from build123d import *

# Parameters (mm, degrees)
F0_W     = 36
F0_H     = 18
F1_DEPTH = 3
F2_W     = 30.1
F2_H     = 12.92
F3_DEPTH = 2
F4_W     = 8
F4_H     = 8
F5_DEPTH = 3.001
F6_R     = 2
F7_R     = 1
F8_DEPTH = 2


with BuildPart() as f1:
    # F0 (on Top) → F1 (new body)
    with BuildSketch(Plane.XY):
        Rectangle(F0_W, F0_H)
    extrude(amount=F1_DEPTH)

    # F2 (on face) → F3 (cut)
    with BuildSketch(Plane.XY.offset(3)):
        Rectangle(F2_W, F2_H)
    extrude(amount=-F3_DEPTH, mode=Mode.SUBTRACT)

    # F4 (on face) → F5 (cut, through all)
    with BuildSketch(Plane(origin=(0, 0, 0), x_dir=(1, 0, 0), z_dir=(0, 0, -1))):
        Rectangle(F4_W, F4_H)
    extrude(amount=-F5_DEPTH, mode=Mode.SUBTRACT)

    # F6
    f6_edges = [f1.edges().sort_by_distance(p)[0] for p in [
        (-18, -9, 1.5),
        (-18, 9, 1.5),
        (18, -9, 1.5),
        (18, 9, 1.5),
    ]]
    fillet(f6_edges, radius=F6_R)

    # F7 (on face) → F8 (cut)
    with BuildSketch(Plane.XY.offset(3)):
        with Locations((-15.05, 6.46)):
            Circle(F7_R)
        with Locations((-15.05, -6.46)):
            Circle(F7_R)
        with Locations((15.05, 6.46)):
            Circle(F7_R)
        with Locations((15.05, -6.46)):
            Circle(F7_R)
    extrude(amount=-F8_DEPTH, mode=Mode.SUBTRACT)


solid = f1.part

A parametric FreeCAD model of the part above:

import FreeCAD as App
import Part
import Sketcher


def edges_at(feature, points):
    """Names of the edges that pass closest to the given points."""
    edges = feature.Shape.Edges
    near = lambda p: min(range(len(edges)), key=lambda i: edges[i].distToShape(Part.Vertex(*p))[0])
    return sorted({f"Edge{near(p) + 1}" for p in points})

doc = App.newDocument("Part")
body = doc.addObject("PartDesign::Body", "Body")

sketch1 = body.newObject("Sketcher::SketchObject", "Sketch")
sketch1.AttachmentSupport = (doc.getObject("XY_Plane"), [""])
sketch1.MapMode = "FlatFace"
sketch1.addGeometry([
    Part.LineSegment(App.Vector(-18, 9, 0), App.Vector(-18, -9, 0)),
    Part.LineSegment(App.Vector(-18, -9, 0), App.Vector(18, -9, 0)),
    Part.LineSegment(App.Vector(18, -9, 0), App.Vector(18, 9, 0)),
    Part.LineSegment(App.Vector(18, 9, 0), App.Vector(-18, 9, 0)),
], False)
sketch1.addConstraint([
    Sketcher.Constraint("Coincident", 0, 2, 1, 1),
    Sketcher.Constraint("Coincident", 1, 2, 2, 1),
    Sketcher.Constraint("Coincident", 2, 2, 3, 1),
    Sketcher.Constraint("Coincident", 3, 2, 0, 1),
    Sketcher.Constraint("Vertical", 0),
    Sketcher.Constraint("Horizontal", 1),
    Sketcher.Constraint("Vertical", 2),
    Sketcher.Constraint("Horizontal", 3),
    Sketcher.Constraint("Symmetric", 0, 2, 2, 2, -1, 1),
    Sketcher.Constraint("DistanceX", 1, 1, 1, 2, 36.0),
    Sketcher.Constraint("DistanceY", 0, 2, 0, 1, 18.0),
])
pad1 = body.newObject("PartDesign::Pad", "Pad")
pad1.Profile = sketch1
pad1.Length = 3

sketch2 = body.newObject("Sketcher::SketchObject", "Sketch001")
sketch2.AttachmentSupport = (doc.getObject("XY_Plane"), [""])
sketch2.MapMode = "FlatFace"
sketch2.AttachmentOffset = App.Placement(App.Vector(0, 0, 3), App.Rotation())
sketch2.addGeometry([
    Part.LineSegment(App.Vector(-15, 6, 0), App.Vector(-15, -6, 0)),
    Part.LineSegment(App.Vector(-15, -6, 0), App.Vector(15, -6, 0)),
    Part.LineSegment(App.Vector(15, -6, 0), App.Vector(15, 6, 0)),
    Part.LineSegment(App.Vector(15, 6, 0), App.Vector(-15, 6, 0)),
], False)
sketch2.addConstraint([
    Sketcher.Constraint("Coincident", 0, 2, 1, 1),
    Sketcher.Constraint("Coincident", 1, 2, 2, 1),
    Sketcher.Constraint("Coincident", 2, 2, 3, 1),
    Sketcher.Constraint("Coincident", 3, 2, 0, 1),
    Sketcher.Constraint("Vertical", 0),
    Sketcher.Constraint("Horizontal", 1),
    Sketcher.Constraint("Vertical", 2),
    Sketcher.Constraint("Horizontal", 3),
    Sketcher.Constraint("Symmetric", 0, 2, 2, 2, -1, 1),
    Sketcher.Constraint("DistanceX", 1, 1, 1, 2, 30.1),
    Sketcher.Constraint("DistanceY", 0, 2, 0, 1, 12.92),
])
pocket1 = body.newObject("PartDesign::Pocket", "Pocket")
pocket1.Profile = sketch2
pocket1.Length = 2

sketch3 = body.newObject("Sketcher::SketchObject", "Sketch002")
sketch3.AttachmentSupport = (doc.getObject("XY_Plane"), [""])
sketch3.MapMode = "FlatFace"
sketch3.addGeometry([
    Part.LineSegment(App.Vector(-4, -4, 0), App.Vector(-4, 4, 0)),
    Part.LineSegment(App.Vector(-4, 4, 0), App.Vector(4, 4, 0)),
    Part.LineSegment(App.Vector(4, 4, 0), App.Vector(4, -4, 0)),
    Part.LineSegment(App.Vector(4, -4, 0), App.Vector(-4, -4, 0)),
], False)
sketch3.addConstraint([
    Sketcher.Constraint("Coincident", 0, 2, 1, 1),
    Sketcher.Constraint("Coincident", 1, 2, 2, 1),
    Sketcher.Constraint("Coincident", 2, 2, 3, 1),
    Sketcher.Constraint("Coincident", 3, 2, 0, 1),
    Sketcher.Constraint("Vertical", 0),
    Sketcher.Constraint("Horizontal", 1),
    Sketcher.Constraint("Vertical", 2),
    Sketcher.Constraint("Horizontal", 3),
    Sketcher.Constraint("Symmetric", 0, 2, 2, 2, -1, 1),
    Sketcher.Constraint("Equal", 3, 0),
    Sketcher.Constraint("DistanceX", 1, 1, 1, 2, 8.0),
])
pocket2 = body.newObject("PartDesign::Pocket", "Pocket001")
pocket2.Profile = sketch3
pocket2.Type = "ThroughAll"
pocket2.Reversed = True
doc.recompute()

fillet = body.newObject("PartDesign::Fillet", "Fillet")
fillet.Base = (pocket2, edges_at(pocket2, [
    (-18, -9, 1.5),
    (-18, 9, 1.5),
    (18, -9, 1.5),
    (18, 9, 1.5),
]))
fillet.Radius = 2

sketch4 = body.newObject("Sketcher::SketchObject", "Sketch003")
sketch4.AttachmentSupport = (doc.getObject("XY_Plane"), [""])
sketch4.MapMode = "FlatFace"
sketch4.AttachmentOffset = App.Placement(App.Vector(0, 0, 3), App.Rotation())
sketch4.addGeometry([
    Part.Circle(App.Vector(-15.1, 6.5, 0), App.Vector(0, 0, 1), 1),
    Part.Circle(App.Vector(-15.1, -6.5, 0), App.Vector(0, 0, 1), 1),
    Part.Circle(App.Vector(15.1, 6.5, 0), App.Vector(0, 0, 1), 1),
    Part.Circle(App.Vector(15.1, -6.5, 0), App.Vector(0, 0, 1), 1),
], False)
sketch4.addConstraint([
    Sketcher.Constraint("Equal", 0, 1),
    Sketcher.Constraint("Equal", 1, 2),
    Sketcher.Constraint("Equal", 2, 3),
    Sketcher.Constraint("Symmetric", 1, 3, 2, 3, -1, 1),
    Sketcher.Constraint("Symmetric", 0, 3, 3, 3, -1, 1),
    Sketcher.Constraint("Symmetric", 0, 3, 2, 3, -2),
    Sketcher.Constraint("Diameter", 0, 2.0),
    Sketcher.Constraint("DistanceX", 0, 3, 2, 3, 30.1),
    Sketcher.Constraint("DistanceY", -1, 1, 0, 3, 6.46),
])
pocket3 = body.newObject("PartDesign::Pocket", "Pocket002")
pocket3.Profile = sketch4
pocket3.Length = 2

doc.recompute()
